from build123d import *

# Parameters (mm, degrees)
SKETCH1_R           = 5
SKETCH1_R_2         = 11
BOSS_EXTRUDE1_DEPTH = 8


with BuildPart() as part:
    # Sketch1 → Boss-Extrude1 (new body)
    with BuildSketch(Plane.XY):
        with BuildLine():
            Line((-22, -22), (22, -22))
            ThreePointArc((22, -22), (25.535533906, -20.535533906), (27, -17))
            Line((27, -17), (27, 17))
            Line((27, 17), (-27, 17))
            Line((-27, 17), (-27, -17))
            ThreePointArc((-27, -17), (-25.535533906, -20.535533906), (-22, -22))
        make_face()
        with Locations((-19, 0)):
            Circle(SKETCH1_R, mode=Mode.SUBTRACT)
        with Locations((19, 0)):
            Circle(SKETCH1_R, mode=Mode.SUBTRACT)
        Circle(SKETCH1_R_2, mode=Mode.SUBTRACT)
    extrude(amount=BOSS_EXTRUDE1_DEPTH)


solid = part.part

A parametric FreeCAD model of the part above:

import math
import FreeCAD as App
import Part
import Sketcher
Q = App.Units.Quantity

doc = App.newDocument("Part")
params = doc.addObject("Spreadsheet::Sheet", "Params")
for row, (alias, value) in enumerate([
    ("sketch1_diameter", "10 mm"),
    ("sketch1_diameter2", "22 mm"),
    ("sketch1_width", "44 mm"),
    ("sketch1_height", "34 mm"),
    ("pad1_length", "8 mm"),
], start=1):
    params.set(f"A{row}", alias)
    params.set(f"B{row}", "=" + value)
    params.setAlias(f"B{row}", alias)

body = doc.addObject("PartDesign::Body", "Body")

# Sketch on XY plane
sketch1 = body.newObject("Sketcher::SketchObject", "Sketch")
sketch1.AttachmentSupport = (doc.getObject("XY_Plane"), [""])
sketch1.MapMode = "FlatFace"
sketch1.addGeometry([
    Part.LineSegment(App.Vector(-22, -22, 0), App.Vector(22, -22, 0)),  # 0
    Part.ArcOfCircle(Part.Circle(App.Vector(22, -17, 0), App.Vector(0, 0, 1), 5), math.radians(-90), math.radians(0)),  # 1
    Part.LineSegment(App.Vector(27, -17, 0), App.Vector(27, 17, 0)),  # 2
    Part.LineSegment(App.Vector(27, 17, 0), App.Vector(-27, 17, 0)),  # 3
    Part.LineSegment(App.Vector(-27, 17, 0), App.Vector(-27, -17, 0)),  # 4
    Part.ArcOfCircle(Part.Circle(App.Vector(-22, -17, 0), App.Vector(0, 0, 1), 5), math.radians(180), math.radians(270)),  # 5
    Part.Circle(App.Vector(-19, 0, 0), App.Vector(0, 0, 1), 5),  # 6
    Part.Circle(App.Vector(0, 0, 0), App.Vector(0, 0, 1), 11),  # 7
    Part.Circle(App.Vector(19, 0, 0), App.Vector(0, 0, 1), 5),  # 8
], False)
sketch1.addConstraint([
    Sketcher.Constraint("Tangent", 0, 2, 1, 1),
    Sketcher.Constraint("Tangent", 1, 2, 2, 1),
    Sketcher.Constraint("Coincident", 2, 2, 3, 1),
    Sketcher.Constraint("Coincident", 3, 2, 4, 1),
    Sketcher.Constraint("Tangent", 4, 2, 5, 1),
    Sketcher.Constraint("Tangent", 5, 2, 0, 1),
    Sketcher.Constraint("Horizontal", 0),
    Sketcher.Constraint("Vertical", 2),
    Sketcher.Constraint("Horizontal", 3),
    Sketcher.Constraint("Vertical", 4),
    Sketcher.Constraint("Coincident", 7, 3, -1, 1),
    Sketcher.Constraint("Equal", 1, 5),
    Sketcher.Constraint("Equal", 5, 6),
    Sketcher.Constraint("Equal", 6, 8),
    Sketcher.Constraint("Symmetric", 6, 3, 8, 3, -1, 1),
    Sketcher.Constraint("Symmetric", 1, 2, 3, 2, -1, 1),
    Sketcher.Constraint("PointOnObject", 6, 3, -1),
    Sketcher.Constraint("Diameter", 6, Q("10 mm")),
    Sketcher.Constraint("Diameter", 7, Q("22 mm")),
    Sketcher.Constraint("DistanceX", 0, 1, 0, 2, Q("44 mm")),
    Sketcher.Constraint("DistanceY", 2, 1, 2, 2, Q("34 mm")),
    Sketcher.Constraint("DistanceX", 6, 3, -1, 1, Q("19 mm")),
])
sketch1.setExpression("Constraints[17]", "Params.sketch1_diameter")
sketch1.setExpression("Constraints[18]", "Params.sketch1_diameter2")
sketch1.setExpression("Constraints[19]", "Params.sketch1_width")
sketch1.setExpression("Constraints[20]", "Params.sketch1_height")
pad1 = body.newObject("PartDesign::Pad", "Pad")
pad1.Profile = sketch1
pad1.setExpression("Length", "Params.pad1_length")

doc.recompute()
